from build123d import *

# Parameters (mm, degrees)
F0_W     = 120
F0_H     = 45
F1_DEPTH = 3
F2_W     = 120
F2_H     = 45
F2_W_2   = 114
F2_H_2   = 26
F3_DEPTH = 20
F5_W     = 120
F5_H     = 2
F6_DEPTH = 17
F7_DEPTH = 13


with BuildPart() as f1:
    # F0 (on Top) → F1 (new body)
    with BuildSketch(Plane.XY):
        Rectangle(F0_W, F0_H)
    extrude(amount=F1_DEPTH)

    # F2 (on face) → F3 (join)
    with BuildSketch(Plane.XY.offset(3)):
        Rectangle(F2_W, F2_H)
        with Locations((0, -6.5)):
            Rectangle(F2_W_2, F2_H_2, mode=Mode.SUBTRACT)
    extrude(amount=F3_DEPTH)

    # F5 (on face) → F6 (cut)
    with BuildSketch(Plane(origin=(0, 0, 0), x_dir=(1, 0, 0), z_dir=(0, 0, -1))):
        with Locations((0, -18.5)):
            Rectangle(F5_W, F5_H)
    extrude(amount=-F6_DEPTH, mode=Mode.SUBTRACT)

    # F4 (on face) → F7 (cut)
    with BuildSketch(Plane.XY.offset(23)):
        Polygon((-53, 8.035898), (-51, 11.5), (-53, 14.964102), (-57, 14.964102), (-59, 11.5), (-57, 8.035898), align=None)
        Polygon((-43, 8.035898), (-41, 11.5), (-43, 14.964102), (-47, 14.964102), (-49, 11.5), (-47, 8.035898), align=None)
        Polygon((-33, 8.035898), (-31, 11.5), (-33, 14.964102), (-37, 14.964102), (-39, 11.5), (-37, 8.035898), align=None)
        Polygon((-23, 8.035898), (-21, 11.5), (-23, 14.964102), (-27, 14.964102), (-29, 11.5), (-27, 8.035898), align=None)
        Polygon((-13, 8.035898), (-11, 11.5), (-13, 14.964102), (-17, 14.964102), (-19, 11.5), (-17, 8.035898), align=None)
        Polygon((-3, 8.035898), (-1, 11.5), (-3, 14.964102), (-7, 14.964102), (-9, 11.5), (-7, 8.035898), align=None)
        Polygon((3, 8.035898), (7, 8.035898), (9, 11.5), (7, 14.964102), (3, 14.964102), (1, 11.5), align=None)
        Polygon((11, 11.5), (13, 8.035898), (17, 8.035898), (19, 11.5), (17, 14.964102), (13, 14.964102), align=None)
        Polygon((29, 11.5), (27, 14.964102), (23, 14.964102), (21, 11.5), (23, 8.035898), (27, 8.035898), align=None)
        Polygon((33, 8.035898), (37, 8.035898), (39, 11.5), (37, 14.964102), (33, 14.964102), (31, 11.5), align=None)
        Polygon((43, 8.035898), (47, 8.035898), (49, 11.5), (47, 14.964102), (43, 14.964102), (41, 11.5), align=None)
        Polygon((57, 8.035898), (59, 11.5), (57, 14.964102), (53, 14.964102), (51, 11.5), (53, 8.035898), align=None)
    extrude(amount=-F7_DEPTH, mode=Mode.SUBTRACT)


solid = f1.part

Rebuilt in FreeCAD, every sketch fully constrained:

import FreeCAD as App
import Part
import Sketcher
from FreeCAD import Vector
Q = App.Units.Quantity

doc = App.newDocument("Part")
params = doc.addObject("Spreadsheet::Sheet", "Params")
for row, (alias, value) in enumerate([
    ("sketch1_width", "120 mm"),
    ("sketch1_height", "45 mm"),
    ("pad1_length", "3 mm"),
    ("sketch2_width", "120 mm"),
    ("sketch2_width2", "114 mm"),
    ("sketch2_height", "45 mm"),
    ("sketch2_height2", "26 mm"),
    ("pad2_length", "20 mm"),
    ("sketch3_width", "120 mm"),
    ("sketch3_height", "2 mm"),
    ("pocket1_length", "17 mm"),
    ("sketch4_width", "4 mm"),
    ("sketch4_length", "4 mm"),
    ("pocket2_length", "13 mm"),
], start=1):
    params.set(f"A{row}", alias)
    params.set(f"B{row}", "=" + value)
    params.setAlias(f"B{row}", alias)

body = doc.addObject("PartDesign::Body", "Body")

sketch1 = body.newObject("Sketcher::SketchObject", "Sketch")
sketch1.AttachmentSupport = (doc.getObject("XY_Plane"), [""])
sketch1.MapMode = "FlatFace"
sketch1.addGeometry([
    Part.LineSegment(Vector(-60, 22, 0), Vector(-60, -22, 0)),
    Part.LineSegment(Vector(-60, -22, 0), Vector(60, -22, 0)),
    Part.LineSegment(Vector(60, -22, 0), Vector(60, 22, 0)),
    Part.LineSegment(Vector(60, 22, 0), Vector(-60, 22, 0)),
], False)
sketch1.addConstraint([
    Sketcher.Constraint("Coincident", 0, 2, 1, 1),
    Sketcher.Constraint("Coincident", 1, 2, 2, 1),
    Sketcher.Constraint("Coincident", 2, 2, 3, 1),
    Sketcher.Constraint("Coincident", 3, 2, 0, 1),
    Sketcher.Constraint("Vertical", 0),
    Sketcher.Constraint("Horizontal", 1),
    Sketcher.Constraint("Vertical", 2),
    Sketcher.Constraint("Horizontal", 3),
    Sketcher.Constraint("Symmetric", 0, 2, 2, 2, -1, 1),
    Sketcher.Constraint("DistanceX", 1, 1, 1, 2, 120.0),
    Sketcher.Constraint("DistanceY", 0, 2, 0, 1, 45.0),
])
sketch1.setExpression("Constraints[9]", "Params.sketch1_width")
sketch1.setExpression("Constraints[10]", "Params.sketch1_height")
pad1 = body.newObject("PartDesign::Pad", "Pad")
pad1.Profile = sketch1
pad1.setExpression("Length", "Params.pad1_length")

sketch2 = body.newObject("Sketcher::SketchObject", "Sketch001")
sketch2.AttachmentSupport = (doc.getObject("XY_Plane"), [""])
sketch2.MapMode = "FlatFace"
sketch2.AttachmentOffset = App.Placement(Vector(0, 0, 3), App.Rotation())
sketch2.addGeometry([
    Part.LineSegment(Vector(-60, 22, 0), Vector(-60, -22, 0)),
    Part.LineSegment(Vector(-60, -22, 0), Vector(60, -22, 0)),
    Part.LineSegment(Vector(60, -22, 0), Vector(60, 22, 0)),
    Part.LineSegment(Vector(60, 22, 0), Vector(-60, 22, 0)),
    Part.LineSegment(Vector(57, -20, 0), Vector(-57, -20, 0)),
    Part.LineSegment(Vector(-57, -20, 0), Vector(-57, 6, 0)),
    Part.LineSegment(Vector(-57, 6, 0), Vector(57, 6, 0)),
    Part.LineSegment(Vector(57, 6, 0), Vector(57, -20, 0)),
], False)
sketch2.addConstraint([
    Sketcher.Constraint("Coincident", 0, 2, 1, 1),
    Sketcher.Constraint("Coincident", 1, 2, 2, 1),
    Sketcher.Constraint("Coincident", 2, 2, 3, 1),
    Sketcher.Constraint("Coincident", 3, 2, 0, 1),
    Sketcher.Constraint("Coincident", 4, 2, 5, 1),
    Sketcher.Constraint("Coincident", 5, 2, 6, 1),
    Sketcher.Constraint("Coincident", 6, 2, 7, 1),
    Sketcher.Constraint("Coincident", 7, 2, 4, 1),
    Sketcher.Constraint("Vertical", 0),
    Sketcher.Constraint("Horizontal", 1),
    Sketcher.Constraint("Vertical", 2),
    Sketcher.Constraint("Horizontal", 3),
    Sketcher.Constraint("Horizontal", 4),
    Sketcher.Constraint("Vertical", 5),
    Sketcher.Constraint("Horizontal", 6),
    Sketcher.Constraint("Vertical", 7),
    Sketcher.Constraint("Symmetric", 0, 2, 2, 2, -1, 1),
    Sketcher.Constraint("DistanceX", 1, 1, 1, 2, 120.0),
    Sketcher.Constraint("DistanceX", 4, 2, 4, 1, 114.0),
    Sketcher.Constraint("DistanceY", 0, 2, 0, 1, 45.0),
    Sketcher.Constraint("DistanceY", 5, 1, 5, 2, 26.0),
    Sketcher.Constraint("DistanceX", 4, 2, -1, 1, 57.0),
    Sketcher.Constraint("DistanceY", 0, 2, 4, 2, 3.0),
])
sketch2.setExpression("Constraints[17]", "Params.sketch2_width")
sketch2.setExpression("Constraints[18]", "Params.sketch2_width2")
sketch2.setExpression("Constraints[19]", "Params.sketch2_height")
sketch2.setExpression("Constraints[20]", "Params.sketch2_height2")
pad2 = body.newObject("PartDesign::Pad", "Pad001")
pad2.Profile = sketch2
pad2.setExpression("Length", "Params.pad2_length")

sketch3 = body.newObject("Sketcher::SketchObject", "Sketch002")
sketch3.AttachmentSupport = (doc.getObject("XY_Plane"), [""])
sketch3.MapMode = "FlatFace"
sketch3.addGeometry([
    Part.LineSegment(Vector(-60, 17.5, 0), Vector(-60, 19.5, 0)),
    Part.LineSegment(Vector(-60, 19.5, 0), Vector(60, 19.5, 0)),
    Part.LineSegment(Vector(60, 19.5, 0), Vector(60, 17.5, 0)),
    Part.LineSegment(Vector(60, 17.5, 0), Vector(-60, 17.5, 0)),
], False)
sketch3.addConstraint([
    Sketcher.Constraint("Coincident", 0, 2, 1, 1),
    Sketcher.Constraint("Coincident", 1, 2, 2, 1),
    Sketcher.Constraint("Coincident", 2, 2, 3, 1),
    Sketcher.Constraint("Coincident", 3, 2, 0, 1),
    Sketcher.Constraint("Vertical", 0),
    Sketcher.Constraint("Horizontal", 1),
    Sketcher.Constraint("Vertical", 2),
    Sketcher.Constraint("Horizontal", 3),
    Sketcher.Constraint("DistanceX", 1, 1, 1, 2, 120.0),
    Sketcher.Constraint("DistanceY", 0, 1, 0, 2, 2.0),
    Sketcher.Constraint("DistanceX", 0, 2, -1, 1, 60.0),
    Sketcher.Constraint("DistanceY", -1, 1, 0, 2, 19.5),
])
sketch3.setExpression("Constraints[8]", "Params.sketch3_width")
sketch3.setExpression("Constraints[9]", "Params.sketch3_height")
pocket1 = body.newObject("PartDesign::Pocket", "Pocket")
pocket1.Profile = sketch3
pocket1.setExpression("Length", "Params.pocket1_length")
pocket1.Reversed = True

sketch4 = body.newObject("Sketcher::SketchObject", "Sketch003")
sketch4.AttachmentSupport = (doc.getObject("XY_Plane"), [""])
sketch4.MapMode = "FlatFace"
sketch4.AttachmentOffset = App.Placement(Vector(0, 0, 23), App.Rotation())
sketch4.addGeometry([
    Part.LineSegment(Vector(-53, 8, 0), Vector(-51, 11.5, 0)),
    Part.LineSegment(Vector(-51, 11.5, 0), Vector(-53, 15, 0)),
    Part.LineSegment(Vector(-53, 15, 0), Vector(-57, 15, 0)),
    Part.LineSegment(Vector(-57, 15, 0), Vector(-59, 11.5, 0)),
    Part.LineSegment(Vector(-59, 11.5, 0), Vector(-57, 8, 0)),
    Part.LineSegment(Vector(-57, 8, 0), Vector(-53, 8, 0)),
    Part.LineSegment(Vector(-43, 8, 0), Vector(-41, 11.5, 0)),
    Part.LineSegment(Vector(-41, 11.5, 0), Vector(-43, 15, 0)),
    Part.LineSegment(Vector(-43, 15, 0), Vector(-47, 15, 0)),
    Part.LineSegment(Vector(-47, 15, 0), Vector(-49, 11.5, 0)),
    Part.LineSegment(Vector(-49, 11.5, 0), Vector(-47, 8, 0)),
    Part.LineSegment(Vector(-47, 8, 0), Vector(-43, 8, 0)),
    Part.LineSegment(Vector(-33, 8, 0), Vector(-31, 11.5, 0)),
    Part.LineSegment(Vector(-31, 11.5, 0), Vector(-33, 15, 0)),
    Part.LineSegment(Vector(-33, 15, 0), Vector(-37, 15, 0)),
    Part.LineSegment(Vector(-37, 15, 0), Vector(-39, 11.5, 0)),
    Part.LineSegment(Vector(-39, 11.5, 0), Vector(-37, 8, 0)),
    Part.LineSegment(Vector(-37, 8, 0), Vector(-33, 8, 0)),
    Part.LineSegment(Vector(-23, 8, 0), Vector(-21, 11.5, 0)),
    Part.LineSegment(Vector(-21, 11.5, 0), Vector(-23, 15, 0)),
    Part.LineSegment(Vector(-23, 15, 0), Vector(-27, 15, 0)),
    Part.LineSegment(Vector(-27, 15, 0), Vector(-29, 11.5, 0)),
    Part.LineSegment(Vector(-29, 11.5, 0), Vector(-27, 8, 0)),
    Part.LineSegment(Vector(-27, 8, 0), Vector(-23, 8, 0)),
    Part.LineSegment(Vector(-13, 8, 0), Vector(-11, 11.5, 0)),
    Part.LineSegment(Vector(-11, 11.5, 0), Vector(-13, 15, 0)),
    Part.LineSegment(Vector(-13, 15, 0), Vector(-17, 15, 0)),
    Part.LineSegment(Vector(-17, 15, 0), Vector(-19, 11.5, 0)),
    Part.LineSegment(Vector(-19, 11.5, 0), Vector(-17, 8, 0)),
    Part.LineSegment(Vector(-17, 8, 0), Vector(-13, 8, 0)),
    Part.LineSegment(Vector(-3, 8, 0), Vector(-1, 11.5, 0)),
    Part.LineSegment(Vector(-1, 11.5, 0), Vector(-3, 15, 0)),
    Part.LineSegment(Vector(-3, 15, 0), Vector(-7, 15, 0)),
    Part.LineSegment(Vector(-7, 15, 0), Vector(-9, 11.5, 0)),
    Part.LineSegment(Vector(-9, 11.5, 0), Vector(-7, 8, 0)),
    Part.LineSegment(Vector(-7, 8, 0), Vector(-3, 8, 0)),
    Part.LineSegment(Vector(3, 8, 0), Vector(7, 8, 0)),
    Part.LineSegment(Vector(7, 8, 0), Vector(9, 11.5, 0)),
    Part.LineSegment(Vector(9, 11.5, 0), Vector(7, 15, 0)),
    Part.LineSegment(Vector(7, 15, 0), Vector(3, 15, 0)),
    Part.LineSegment(Vector(3, 15, 0), Vector(1, 11.5, 0)),
    Part.LineSegment(Vector(1, 11.5, 0), Vector(3, 8, 0)),
    Part.LineSegment(Vector(11, 11.5, 0), Vector(13, 8, 0)),
    Part.LineSegment(Vector(13, 8, 0), Vector(17, 8, 0)),
    Part.LineSegment(Vector(17, 8, 0), Vector(19, 11.5, 0)),
    Part.LineSegment(Vector(19, 11.5, 0), Vector(17, 15, 0)),
    Part.LineSegment(Vector(17, 15, 0), Vector(13, 15, 0)),
    Part.LineSegment(Vector(13, 15, 0), Vector(11, 11.5, 0)),
    Part.LineSegment(Vector(29, 11.5, 0), Vector(27, 15, 0)),
    Part.LineSegment(Vector(27, 15, 0), Vector(23, 15, 0)),
    Part.LineSegment(Vector(23, 15, 0), Vector(21, 11.5, 0)),
    Part.LineSegment(Vector(21, 11.5, 0), Vector(23, 8, 0)),
    Part.LineSegment(Vector(23, 8, 0), Vector(27, 8, 0)),
    Part.LineSegment(Vector(27, 8, 0), Vector(29, 11.5, 0)),
    Part.LineSegment(Vector(33, 8, 0), Vector(37, 8, 0)),
    Part.LineSegment(Vector(37, 8, 0), Vector(39, 11.5, 0)),
    Part.LineSegment(Vector(39, 11.5, 0), Vector(37, 15, 0)),
    Part.LineSegment(Vector(37, 15, 0), Vector(33, 15, 0)),
    Part.LineSegment(Vector(33, 15, 0), Vector(31, 11.5, 0)),
    Part.LineSegment(Vector(31, 11.5, 0), Vector(33, 8, 0)),
    Part.LineSegment(Vector(43, 8, 0), Vector(47, 8, 0)),
    Part.LineSegment(Vector(47, 8, 0), Vector(49, 11.5, 0)),
    Part.LineSegment(Vector(49, 11.5, 0), Vector(47, 15, 0)),
    Part.LineSegment(Vector(47, 15, 0), Vector(43, 15, 0)),
    Part.LineSegment(Vector(43, 15, 0), Vector(41, 11.5, 0)),
    Part.LineSegment(Vector(41, 11.5, 0), Vector(43, 8, 0)),
    Part.LineSegment(Vector(57, 8, 0), Vector(59, 11.5, 0)),
    Part.LineSegment(Vector(59, 11.5, 0), Vector(57, 15, 0)),
    Part.LineSegment(Vector(57, 15, 0), Vector(53, 15, 0)),
    Part.LineSegment(Vector(53, 15, 0), Vector(51, 11.5, 0)),
    Part.LineSegment(Vector(51, 11.5, 0), Vector(53, 8, 0)),
    Part.LineSegment(Vector(53, 8, 0), Vector(57, 8, 0)),
], False)
sketch4.addConstraint([
    Sketcher.Constraint("Coincident", 0, 2, 1, 1),
    Sketcher.Constraint("Coincident", 1, 2, 2, 1),
    Sketcher.Constraint("Coincident", 2, 2, 3, 1),
    Sketcher.Constraint("Coincident", 3, 2, 4, 1),
    Sketcher.Constraint("Coincident", 4, 2, 5, 1),
    Sketcher.Constraint("Coincident", 5, 2, 0, 1),
    Sketcher.Constraint("Coincident", 6, 2, 7, 1),
    Sketcher.Constraint("Coincident", 7, 2, 8, 1),
    Sketcher.Constraint("Coincident", 8, 2, 9, 1),
    Sketcher.Constraint("Coincident", 9, 2, 10, 1),
    Sketcher.Constraint("Coincident", 10, 2, 11, 1),
    Sketcher.Constraint("Coincident", 11, 2, 6, 1),
    Sketcher.Constraint("Coincident", 12, 2, 13, 1),
    Sketcher.Constraint("Coincident", 13, 2, 14, 1),
    Sketcher.Constraint("Coincident", 14, 2, 15, 1),
    Sketcher.Constraint("Coincident", 15, 2, 16, 1),
    Sketcher.Constraint("Coincident", 16, 2, 17, 1),
    Sketcher.Constraint("Coincident", 17, 2, 12, 1),
    Sketcher.Constraint("Coincident", 18, 2, 19, 1),
    Sketcher.Constraint("Coincident", 19, 2, 20, 1),
    Sketcher.Constraint("Coincident", 20, 2, 21, 1),
    Sketcher.Constraint("Coincident", 21, 2, 22, 1),
    Sketcher.Constraint("Coincident", 22, 2, 23, 1),
    Sketcher.Constraint("Coincident", 23, 2, 18, 1),
    Sketcher.Constraint("Coincident", 24, 2, 25, 1),
    Sketcher.Constraint("Coincident", 25, 2, 26, 1),
    Sketcher.Constraint("Coincident", 26, 2, 27, 1),
    Sketcher.Constraint("Coincident", 27, 2, 28, 1),
    Sketcher.Constraint("Coincident", 28, 2, 29, 1),
    Sketcher.Constraint("Coincident", 29, 2, 24, 1),
    Sketcher.Constraint("Coincident", 30, 2, 31, 1),
    Sketcher.Constraint("Coincident", 31, 2, 32, 1),
    Sketcher.Constraint("Coincident", 32, 2, 33, 1),
    Sketcher.Constraint("Coincident", 33, 2, 34, 1),
    Sketcher.Constraint("Coincident", 34, 2, 35, 1),
    Sketcher.Constraint("Coincident", 35, 2, 30, 1),
    Sketcher.Constraint("Coincident", 36, 2, 37, 1),
    Sketcher.Constraint("Coincident", 37, 2, 38, 1),
    Sketcher.Constraint("Coincident", 38, 2, 39, 1),
    Sketcher.Constraint("Coincident", 39, 2, 40, 1),
    Sketcher.Constraint("Coincident", 40, 2, 41, 1),
    Sketcher.Constraint("Coincident", 41, 2, 36, 1),
    Sketcher.Constraint("Coincident", 42, 2, 43, 1),
    Sketcher.Constraint("Coincident", 43, 2, 44, 1),
    Sketcher.Constraint("Coincident", 44, 2, 45, 1),
    Sketcher.Constraint("Coincident", 45, 2, 46, 1),
    Sketcher.Constraint("Coincident", 46, 2, 47, 1),
    Sketcher.Constraint("Coincident", 47, 2, 42, 1),
    Sketcher.Constraint("Coincident", 48, 2, 49, 1),
    Sketcher.Constraint("Coincident", 49, 2, 50, 1),
    Sketcher.Constraint("Coincident", 50, 2, 51, 1),
    Sketcher.Constraint("Coincident", 51, 2, 52, 1),
    Sketcher.Constraint("Coincident", 52, 2, 53, 1),
    Sketcher.Constraint("Coincident", 53, 2, 48, 1),
    Sketcher.Constraint("Coincident", 54, 2, 55, 1),
    Sketcher.Constraint("Coincident", 55, 2, 56, 1),
    Sketcher.Constraint("Coincident", 56, 2, 57, 1),
    Sketcher.Constraint("Coincident", 57, 2, 58, 1),
    Sketcher.Constraint("Coincident", 58, 2, 59, 1),
    Sketcher.Constraint("Coincident", 59, 2, 54, 1),
    Sketcher.Constraint("Coincident", 60, 2, 61, 1),
    Sketcher.Constraint("Coincident", 61, 2, 62, 1),
    Sketcher.Constraint("Coincident", 62, 2, 63, 1),
    Sketcher.Constraint("Coincident", 63, 2, 64, 1),
    Sketcher.Constraint("Coincident", 64, 2, 65, 1),
    Sketcher.Constraint("Coincident", 65, 2, 60, 1),
    Sketcher.Constraint("Coincident", 66, 2, 67, 1),
    Sketcher.Constraint("Coincident", 67, 2, 68, 1),
    Sketcher.Constraint("Coincident", 68, 2, 69, 1),
    Sketcher.Constraint("Coincident", 69, 2, 70, 1),
    Sketcher.Constraint("Coincident", 70, 2, 71, 1),
    Sketcher.Constraint("Coincident", 71, 2, 66, 1),
    Sketcher.Constraint("Horizontal", 2),
    Sketcher.Constraint("Horizontal", 5),
    Sketcher.Constraint("Horizontal", 8),
    Sketcher.Constraint("Horizontal", 11),
    Sketcher.Constraint("Horizontal", 14),
    Sketcher.Constraint("Horizontal", 17),
    Sketcher.Constraint("Horizontal", 20),
    Sketcher.Constraint("Horizontal", 23),
    Sketcher.Constraint("Horizontal", 26),
    Sketcher.Constraint("Horizontal", 29),
    Sketcher.Constraint("Horizontal", 32),
    Sketcher.Constraint("Horizontal", 35),
    Sketcher.Constraint("Horizontal", 36),
    Sketcher.Constraint("Horizontal", 39),
    Sketcher.Constraint("Horizontal", 43),
    Sketcher.Constraint("Horizontal", 46),
    Sketcher.Constraint("Horizontal", 49),
    Sketcher.Constraint("Horizontal", 52),
    Sketcher.Constraint("Horizontal", 54),
    Sketcher.Constraint("Horizontal", 57),
    Sketcher.Constraint("Horizontal", 60),
    Sketcher.Constraint("Horizontal", 63),
    Sketcher.Constraint("Horizontal", 68),
    Sketcher.Constraint("Horizontal", 71),
    Sketcher.Constraint("Symmetric", 34, 2, 36, 2, -2),
    Sketcher.Constraint("Symmetric", 33, 2, 37, 2, -2),
    Sketcher.Constraint("Symmetric", 32, 2, 38, 2, -2),
    Sketcher.Constraint("Symmetric", 30, 2, 40, 2, -2),
    Sketcher.Constraint("Symmetric", 29, 2, 42, 2, -2),
    Sketcher.Constraint("Symmetric", 27, 2, 44, 2, -2),
    Sketcher.Constraint("Symmetric", 26, 2, 45, 2, -2),
    Sketcher.Constraint("Symmetric", 24, 2, 47, 2, -2),
    Sketcher.Constraint("Symmetric", 20, 2, 48, 2, -2),
    Sketcher.Constraint("Symmetric", 18, 2, 50, 2, -2),
    Sketcher.Constraint("Symmetric", 23, 2, 51, 2, -2),
    Sketcher.Constraint("Symmetric", 21, 2, 53, 2, -2),
    Sketcher.Constraint("Symmetric", 16, 2, 54, 2, -2),
    Sketcher.Constraint("Symmetric", 15, 2, 55, 2, -2),
    Sketcher.Constraint("Symmetric", 14, 2, 56, 2, -2),
    Sketcher.Constraint("Symmetric", 12, 2, 58, 2, -2),
    Sketcher.Constraint("Symmetric", 10, 2, 60, 2, -2),
    Sketcher.Constraint("Symmetric", 9, 2, 61, 2, -2),
    Sketcher.Constraint("Symmetric", 8, 2, 62, 2, -2),
    Sketcher.Constraint("Symmetric", 6, 2, 64, 2, -2),
    Sketcher.Constraint("Symmetric", 3, 2, 66, 2, -2),
    Sketcher.Constraint("Symmetric", 2, 2, 67, 2, -2),
    Sketcher.Constraint("Symmetric", 0, 2, 69, 2, -2),
    Sketcher.Constraint("Symmetric", 5, 2, 70, 2, -2),
    Sketcher.Constraint("Parallel", 0, 3),
    Sketcher.Constraint("Parallel", 1, 4),
    Sketcher.Constraint("Parallel", 3, 6),
    Sketcher.Constraint("Parallel", 4, 7),
    Sketcher.Constraint("Parallel", 6, 9),
    Sketcher.Constraint("Parallel", 7, 10),
    Sketcher.Constraint("Parallel", 9, 12),
    Sketcher.Constraint("Parallel", 10, 13),
    Sketcher.Constraint("Parallel", 12, 15),
    Sketcher.Constraint("Parallel", 13, 16),
    Sketcher.Constraint("Parallel", 15, 18),
    Sketcher.Constraint("Parallel", 16, 19),
    Sketcher.Constraint("Parallel", 18, 21),
    Sketcher.Constraint("Parallel", 19, 22),
    Sketcher.Constraint("Parallel", 21, 24),
    Sketcher.Constraint("Parallel", 22, 25),
    Sketcher.Constraint("Parallel", 24, 27),
    Sketcher.Constraint("Parallel", 25, 28),
    Sketcher.Constraint("Parallel", 27, 30),
    Sketcher.Constraint("Parallel", 28, 31),
    Sketcher.Constraint("Parallel", 30, 33),
    Sketcher.Constraint("Parallel", 31, 34),
    Sketcher.Constraint("Parallel", 33, 37),
    Sketcher.Constraint("Parallel", 37, 40),
    Sketcher.Constraint("Parallel", 38, 41),
    Sketcher.Constraint("Parallel", 40, 44),
    Sketcher.Constraint("Parallel", 44, 47),
    Sketcher.Constraint("Parallel", 47, 50),
    Sketcher.Constraint("Parallel", 50, 53),
    Sketcher.Constraint("Parallel", 55, 58),
    Sketcher.Constraint("Parallel", 56, 59),
    Sketcher.Constraint("Parallel", 61, 64),
    Sketcher.Constraint("Parallel", 62, 65),
    Sketcher.Constraint("Parallel", 64, 66),
    Sketcher.Constraint("Parallel", 66, 69),
    Sketcher.Constraint("Horizontal", 0, 2, 3, 2),
    Sketcher.Constraint("Horizontal", 3, 2, 6, 2),
    Sketcher.Constraint("Horizontal", 2, 2, 7, 2),
    Sketcher.Constraint("Horizontal", 6, 2, 9, 2),
    Sketcher.Constraint("Horizontal", 5, 2, 10, 2),
    Sketcher.Constraint("Horizontal", 9, 2, 12, 2),
    Sketcher.Constraint("Horizontal", 8, 2, 13, 2),
    Sketcher.Constraint("Horizontal", 12, 2, 15, 2),
    Sketcher.Constraint("Horizontal", 11, 2, 16, 2),
    Sketcher.Constraint("Horizontal", 15, 2, 18, 2),
    Sketcher.Constraint("Horizontal", 14, 2, 19, 2),
    Sketcher.Constraint("Horizontal", 18, 2, 21, 2),
    Sketcher.Constraint("Horizontal", 17, 2, 22, 2),
    Sketcher.Constraint("Horizontal", 21, 2, 24, 2),
    Sketcher.Constraint("Horizontal", 20, 2, 25, 2),
    Sketcher.Constraint("Horizontal", 24, 2, 27, 2),
    Sketcher.Constraint("Horizontal", 23, 2, 28, 2),
    Sketcher.Constraint("Horizontal", 27, 2, 30, 2),
    Sketcher.Constraint("Horizontal", 26, 2, 31, 2),
    Sketcher.Constraint("Horizontal", 30, 2, 33, 2),
    Sketcher.Constraint("Horizontal", 29, 2, 34, 2),
    Sketcher.Constraint("Vertical", 2, 2, 4, 2),
    Sketcher.Constraint("Equal", 5, 8),
    Sketcher.Constraint("Equal", 11, 14),
    Sketcher.Constraint("Equal", 17, 20),
    Sketcher.Constraint("Equal", 23, 26),
    Sketcher.Constraint("Equal", 29, 32),
    Sketcher.Constraint("DistanceX", 2, 2, 2, 1, 4.0),
    Sketcher.Constraint("Angle", 0, Q("60.000003 deg")),
    Sketcher.Constraint("Distance", 0, 4.0),
    Sketcher.Constraint("DistanceX", 0, 2, -1, 1, 51.0),
    Sketcher.Constraint("DistanceX", 6, 2, -1, 1, 41.0),
    Sketcher.Constraint("DistanceX", 12, 2, -1, 1, 31.0),
    Sketcher.Constraint("DistanceX", 18, 2, -1, 1, 21.0),
    Sketcher.Constraint("DistanceX", 24, 2, -1, 1, 11.0),
    Sketcher.Constraint("DistanceX", 30, 2, -1, 1, 1.0),
    Sketcher.Constraint("DistanceY", -1, 1, 0, 2, 11.5),
])
sketch4.setExpression("Constraints[182]", "Params.sketch4_width")
sketch4.setExpression("Constraints[184]", "Params.sketch4_length")
pocket2 = body.newObject("PartDesign::Pocket", "Pocket001")
pocket2.Profile = sketch4
pocket2.setExpression("Length", "Params.pocket2_length")

doc.recompute()
